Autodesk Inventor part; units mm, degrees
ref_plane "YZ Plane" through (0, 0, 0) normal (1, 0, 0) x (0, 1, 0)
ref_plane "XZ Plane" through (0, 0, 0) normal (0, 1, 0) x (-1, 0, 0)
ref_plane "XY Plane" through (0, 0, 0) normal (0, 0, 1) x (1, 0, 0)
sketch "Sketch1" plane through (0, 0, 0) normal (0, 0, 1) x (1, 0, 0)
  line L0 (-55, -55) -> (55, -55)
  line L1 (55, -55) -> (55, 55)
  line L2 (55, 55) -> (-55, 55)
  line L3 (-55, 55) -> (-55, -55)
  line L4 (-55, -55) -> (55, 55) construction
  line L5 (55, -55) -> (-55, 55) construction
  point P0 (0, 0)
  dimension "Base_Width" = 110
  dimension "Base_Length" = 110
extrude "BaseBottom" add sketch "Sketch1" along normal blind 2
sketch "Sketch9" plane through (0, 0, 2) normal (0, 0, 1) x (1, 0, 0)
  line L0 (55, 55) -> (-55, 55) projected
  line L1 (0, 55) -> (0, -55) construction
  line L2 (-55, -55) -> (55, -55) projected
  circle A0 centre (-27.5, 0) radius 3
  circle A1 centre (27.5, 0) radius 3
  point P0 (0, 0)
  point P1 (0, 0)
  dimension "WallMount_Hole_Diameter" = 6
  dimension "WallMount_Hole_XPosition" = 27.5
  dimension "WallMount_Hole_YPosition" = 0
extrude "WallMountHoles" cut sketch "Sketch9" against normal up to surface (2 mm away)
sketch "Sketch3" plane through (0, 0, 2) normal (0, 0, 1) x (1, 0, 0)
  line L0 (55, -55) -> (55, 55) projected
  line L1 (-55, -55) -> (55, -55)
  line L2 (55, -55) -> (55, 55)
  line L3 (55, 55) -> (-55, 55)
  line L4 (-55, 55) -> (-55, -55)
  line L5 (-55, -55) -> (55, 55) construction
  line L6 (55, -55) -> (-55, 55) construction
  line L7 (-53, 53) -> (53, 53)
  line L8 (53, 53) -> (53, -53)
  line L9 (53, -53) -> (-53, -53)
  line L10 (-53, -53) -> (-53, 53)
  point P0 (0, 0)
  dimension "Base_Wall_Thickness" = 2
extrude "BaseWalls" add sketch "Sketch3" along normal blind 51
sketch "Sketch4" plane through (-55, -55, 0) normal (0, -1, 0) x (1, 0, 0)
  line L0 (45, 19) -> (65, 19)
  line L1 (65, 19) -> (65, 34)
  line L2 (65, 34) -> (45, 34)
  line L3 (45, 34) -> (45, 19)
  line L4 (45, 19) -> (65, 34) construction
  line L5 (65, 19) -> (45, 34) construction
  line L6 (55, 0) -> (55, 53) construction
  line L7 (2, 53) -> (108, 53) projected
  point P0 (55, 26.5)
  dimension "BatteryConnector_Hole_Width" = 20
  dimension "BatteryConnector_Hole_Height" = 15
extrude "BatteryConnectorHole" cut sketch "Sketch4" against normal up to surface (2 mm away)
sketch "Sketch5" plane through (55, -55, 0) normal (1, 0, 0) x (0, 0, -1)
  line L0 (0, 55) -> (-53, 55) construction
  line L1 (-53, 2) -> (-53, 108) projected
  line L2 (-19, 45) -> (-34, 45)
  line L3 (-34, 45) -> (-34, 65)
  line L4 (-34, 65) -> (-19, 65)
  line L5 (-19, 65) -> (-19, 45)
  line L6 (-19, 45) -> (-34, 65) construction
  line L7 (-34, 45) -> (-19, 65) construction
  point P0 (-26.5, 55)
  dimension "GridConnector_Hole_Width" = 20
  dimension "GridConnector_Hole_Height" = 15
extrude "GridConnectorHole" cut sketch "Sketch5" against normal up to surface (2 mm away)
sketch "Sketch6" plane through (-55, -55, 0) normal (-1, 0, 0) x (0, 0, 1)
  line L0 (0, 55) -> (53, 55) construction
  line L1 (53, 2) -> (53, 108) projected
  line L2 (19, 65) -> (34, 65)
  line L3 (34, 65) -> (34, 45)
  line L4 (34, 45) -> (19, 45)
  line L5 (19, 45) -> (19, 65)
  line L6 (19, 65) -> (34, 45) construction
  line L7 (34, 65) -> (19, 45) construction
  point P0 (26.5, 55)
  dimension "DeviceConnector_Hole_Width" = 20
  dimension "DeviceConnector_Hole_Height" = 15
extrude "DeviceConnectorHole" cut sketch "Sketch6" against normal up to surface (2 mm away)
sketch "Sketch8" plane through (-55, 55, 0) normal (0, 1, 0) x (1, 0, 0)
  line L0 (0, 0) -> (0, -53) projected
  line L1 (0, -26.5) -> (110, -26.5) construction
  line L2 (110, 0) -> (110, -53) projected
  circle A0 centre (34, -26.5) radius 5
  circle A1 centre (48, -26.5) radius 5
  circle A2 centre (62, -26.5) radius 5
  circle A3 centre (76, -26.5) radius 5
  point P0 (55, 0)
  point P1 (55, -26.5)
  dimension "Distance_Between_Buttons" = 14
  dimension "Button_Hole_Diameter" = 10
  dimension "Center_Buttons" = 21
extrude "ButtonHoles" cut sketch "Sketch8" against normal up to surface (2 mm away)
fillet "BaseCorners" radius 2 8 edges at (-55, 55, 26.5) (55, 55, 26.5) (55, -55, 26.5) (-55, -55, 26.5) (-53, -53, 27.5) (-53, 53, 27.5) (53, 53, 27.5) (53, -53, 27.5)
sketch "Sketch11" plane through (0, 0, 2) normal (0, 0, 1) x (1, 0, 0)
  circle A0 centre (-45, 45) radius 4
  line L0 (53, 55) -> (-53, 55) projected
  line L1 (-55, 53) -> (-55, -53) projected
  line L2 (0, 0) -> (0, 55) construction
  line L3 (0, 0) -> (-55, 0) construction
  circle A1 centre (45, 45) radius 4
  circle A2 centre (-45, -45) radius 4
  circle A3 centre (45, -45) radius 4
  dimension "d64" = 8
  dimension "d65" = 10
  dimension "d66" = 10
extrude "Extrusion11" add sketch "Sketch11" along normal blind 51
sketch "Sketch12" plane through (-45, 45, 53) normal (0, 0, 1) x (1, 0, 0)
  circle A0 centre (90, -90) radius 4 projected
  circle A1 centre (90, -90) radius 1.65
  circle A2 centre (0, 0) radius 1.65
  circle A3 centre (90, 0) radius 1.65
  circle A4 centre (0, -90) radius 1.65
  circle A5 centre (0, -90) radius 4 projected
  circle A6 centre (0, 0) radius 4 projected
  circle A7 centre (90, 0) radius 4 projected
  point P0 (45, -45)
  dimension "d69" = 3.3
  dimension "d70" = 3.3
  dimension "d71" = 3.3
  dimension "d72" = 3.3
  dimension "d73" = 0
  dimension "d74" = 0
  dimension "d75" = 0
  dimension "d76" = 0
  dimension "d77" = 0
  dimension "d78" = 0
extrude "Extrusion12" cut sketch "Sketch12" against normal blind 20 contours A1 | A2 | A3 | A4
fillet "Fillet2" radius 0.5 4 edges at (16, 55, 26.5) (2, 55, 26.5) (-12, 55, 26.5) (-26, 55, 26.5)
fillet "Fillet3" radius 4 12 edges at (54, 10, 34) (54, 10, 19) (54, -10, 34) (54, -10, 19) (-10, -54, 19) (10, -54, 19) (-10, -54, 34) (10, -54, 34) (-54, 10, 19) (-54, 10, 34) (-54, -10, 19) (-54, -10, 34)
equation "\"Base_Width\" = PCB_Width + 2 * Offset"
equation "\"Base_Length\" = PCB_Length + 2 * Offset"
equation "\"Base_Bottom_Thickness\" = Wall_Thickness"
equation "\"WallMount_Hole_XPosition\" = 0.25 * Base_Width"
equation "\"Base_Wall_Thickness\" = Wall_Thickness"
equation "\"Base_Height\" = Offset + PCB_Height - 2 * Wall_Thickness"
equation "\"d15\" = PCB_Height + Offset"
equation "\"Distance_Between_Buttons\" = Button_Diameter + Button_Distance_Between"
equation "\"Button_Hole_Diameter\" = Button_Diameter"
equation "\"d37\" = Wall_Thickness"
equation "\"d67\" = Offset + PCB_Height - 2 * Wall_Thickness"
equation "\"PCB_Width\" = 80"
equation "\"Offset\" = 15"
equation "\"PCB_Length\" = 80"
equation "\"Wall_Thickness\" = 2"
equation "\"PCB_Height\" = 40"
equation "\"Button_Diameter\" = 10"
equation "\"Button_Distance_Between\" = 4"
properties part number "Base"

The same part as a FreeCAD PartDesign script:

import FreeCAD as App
import Part
import Sketcher
from FreeCAD import Vector
Q = App.Units.Quantity


def edges_at(feature, points):
    """Names of the edges that pass closest to the given points."""
    edges = feature.Shape.Edges
    near = lambda p: min(range(len(edges)), key=lambda i: edges[i].distToShape(Part.Vertex(*p))[0])
    return sorted({f"Edge{near(p) + 1}" for p in points})

doc = App.newDocument("Part")
body = doc.addObject("PartDesign::Body", "Body")

sketch1 = doc.addObject("Sketcher::SketchObject", "Sketch")
body.addObject(sketch1)
sketch1.AttachmentSupport = (doc.XY_Plane, [""])
sketch1.MapMode = "FlatFace"
sketch1.addGeometry(Part.LineSegment(Vector(-55, 55, 0), Vector(-55, -55, 0)), False)
sketch1.addGeometry(Part.LineSegment(Vector(-55, -55, 0), Vector(55, -55, 0)), False)
sketch1.addGeometry(Part.LineSegment(Vector(55, -55, 0), Vector(55, 55, 0)), False)
sketch1.addGeometry(Part.LineSegment(Vector(55, 55, 0), Vector(-55, 55, 0)), False)
sketch1.addConstraint(Sketcher.Constraint("Coincident", 0, 2, 1, 1))
sketch1.addConstraint(Sketcher.Constraint("Coincident", 1, 2, 2, 1))
sketch1.addConstraint(Sketcher.Constraint("Coincident", 2, 2, 3, 1))
sketch1.addConstraint(Sketcher.Constraint("Coincident", 3, 2, 0, 1))
sketch1.addConstraint(Sketcher.Constraint("Vertical", 0))
sketch1.addConstraint(Sketcher.Constraint("Horizontal", 1))
sketch1.addConstraint(Sketcher.Constraint("Vertical", 2))
sketch1.addConstraint(Sketcher.Constraint("Horizontal", 3))
sketch1.addConstraint(Sketcher.Constraint("Symmetric", 0, 2, 2, 2, -1, 1))
sketch1.addConstraint(Sketcher.Constraint("Equal", 3, 0))
sketch1.addConstraint(Sketcher.Constraint("DistanceX", 1, 1, 1, 2, Q("110 mm")))
pad1 = doc.addObject("PartDesign::Pad", "Pad")
body.addObject(pad1)
pad1.Profile = sketch1
pad1.Length = 2

sketch2 = doc.addObject("Sketcher::SketchObject", "Sketch001")
body.addObject(sketch2)
sketch2.AttachmentSupport = (doc.XY_Plane, [""])
sketch2.MapMode = "FlatFace"
sketch2.AttachmentOffset = App.Placement(Vector(0, 0, 2), App.Rotation())
sketch2.addGeometry(Part.Circle(Vector(-27.5, 0, 0), Vector(0, 0, 1), 3), False)
sketch2.addGeometry(Part.Circle(Vector(27.5, 0, 0), Vector(0, 0, 1), 3), False)
sketch2.addConstraint(Sketcher.Constraint("Equal", 0, 1))
sketch2.addConstraint(Sketcher.Constraint("Symmetric", 0, 3, 1, 3, -1, 1))
sketch2.addConstraint(Sketcher.Constraint("PointOnObject", 0, 3, -1))
sketch2.addConstraint(Sketcher.Constraint("Diameter", 0, Q("6 mm")))
sketch2.addConstraint(Sketcher.Constraint("DistanceX", 0, 3, -1, 1, Q("27.5 mm")))
pocket1 = doc.addObject("PartDesign::Pocket", "Pocket")
body.addObject(pocket1)
pocket1.Profile = sketch2
pocket1.Length = 2

sketch3 = doc.addObject("Sketcher::SketchObject", "Sketch002")
body.addObject(sketch3)
sketch3.AttachmentSupport = (doc.XY_Plane, [""])
sketch3.MapMode = "FlatFace"
sketch3.AttachmentOffset = App.Placement(Vector(0, 0, 2), App.Rotation())
sketch3.addGeometry(Part.LineSegment(Vector(-55, -55, 0), Vector(55, -55, 0)), False)
sketch3.addGeometry(Part.LineSegment(Vector(55, -55, 0), Vector(55, 55, 0)), False)
sketch3.addGeometry(Part.LineSegment(Vector(55, 55, 0), Vector(-55, 55, 0)), False)
sketch3.addGeometry(Part.LineSegment(Vector(-55, 55, 0), Vector(-55, -55, 0)), False)
sketch3.addGeometry(Part.LineSegment(Vector(-53, -53, 0), Vector(-53, 53, 0)), False)
sketch3.addGeometry(Part.LineSegment(Vector(-53, 53, 0), Vector(53, 53, 0)), False)
sketch3.addGeometry(Part.LineSegment(Vector(53, 53, 0), Vector(53, -53, 0)), False)
sketch3.addGeometry(Part.LineSegment(Vector(53, -53, 0), Vector(-53, -53, 0)), False)
sketch3.addConstraint(Sketcher.Constraint("Coincident", 0, 2, 1, 1))
sketch3.addConstraint(Sketcher.Constraint("Coincident", 1, 2, 2, 1))
sketch3.addConstraint(Sketcher.Constraint("Coincident", 2, 2, 3, 1))
sketch3.addConstraint(Sketcher.Constraint("Coincident", 3, 2, 0, 1))
sketch3.addConstraint(Sketcher.Constraint("Coincident", 4, 2, 5, 1))
sketch3.addConstraint(Sketcher.Constraint("Coincident", 5, 2, 6, 1))
sketch3.addConstraint(Sketcher.Constraint("Coincident", 6, 2, 7, 1))
sketch3.addConstraint(Sketcher.Constraint("Coincident", 7, 2, 4, 1))
sketch3.addConstraint(Sketcher.Constraint("Horizontal", 0))
sketch3.addConstraint(Sketcher.Constraint("Vertical", 1))
sketch3.addConstraint(Sketcher.Constraint("Horizontal", 2))
sketch3.addConstraint(Sketcher.Constraint("Vertical", 3))
sketch3.addConstraint(Sketcher.Constraint("Vertical", 4))
sketch3.addConstraint(Sketcher.Constraint("Horizontal", 5))
sketch3.addConstraint(Sketcher.Constraint("Vertical", 6))
sketch3.addConstraint(Sketcher.Constraint("Horizontal", 7))
sketch3.addConstraint(Sketcher.Constraint("Symmetric", 0, 2, 2, 2, -1, 1))
sketch3.addConstraint(Sketcher.Constraint("Symmetric", 4, 2, 6, 2, -1, 1))
sketch3.addConstraint(Sketcher.Constraint("Equal", 2, 1))
sketch3.addConstraint(Sketcher.Constraint("Equal", 7, 4))
sketch3.addConstraint(Sketcher.Constraint("DistanceX", 2, 2, 4, 2, Q("2 mm")))
sketch3.addConstraint(Sketcher.Constraint("DistanceX", 0, 1, 0, 2, Q("110 mm")))
pad2 = doc.addObject("PartDesign::Pad", "Pad001")
body.addObject(pad2)
pad2.Profile = sketch3
pad2.Length = 51

sketch4 = doc.addObject("Sketcher::SketchObject", "Sketch003")
body.addObject(sketch4)
sketch4.AttachmentSupport = (doc.XZ_Plane, [""])
sketch4.MapMode = "FlatFace"
sketch4.AttachmentOffset = App.Placement(Vector(0, 0, 55), App.Rotation())
sketch4.addGeometry(Part.LineSegment(Vector(-10, 34, 0), Vector(-10, 19, 0)), False)
sketch4.addGeometry(Part.LineSegment(Vector(-10, 19, 0), Vector(10, 19, 0)), False)
sketch4.addGeometry(Part.LineSegment(Vector(10, 19, 0), Vector(10, 34, 0)), False)
sketch4.addGeometry(Part.LineSegment(Vector(10, 34, 0), Vector(-10, 34, 0)), False)
sketch4.addConstraint(Sketcher.Constraint("Coincident", 0, 2, 1, 1))
sketch4.addConstraint(Sketcher.Constraint("Coincident", 1, 2, 2, 1))
sketch4.addConstraint(Sketcher.Constraint("Coincident", 2, 2, 3, 1))
sketch4.addConstraint(Sketcher.Constraint("Coincident", 3, 2, 0, 1))
sketch4.addConstraint(Sketcher.Constraint("Vertical", 0))
sketch4.addConstraint(Sketcher.Constraint("Horizontal", 1))
sketch4.addConstraint(Sketcher.Constraint("Vertical", 2))
sketch4.addConstraint(Sketcher.Constraint("Horizontal", 3))
sketch4.addConstraint(Sketcher.Constraint("DistanceX", 1, 1, 1, 2, Q("20 mm")))
sketch4.addConstraint(Sketcher.Constraint("DistanceY", 0, 2, 0, 1, Q("15 mm")))
sketch4.addConstraint(Sketcher.Constraint("DistanceX", 0, 2, -1, 1, Q("10 mm")))
sketch4.addConstraint(Sketcher.Constraint("DistanceY", -1, 1, 0, 2, Q("19 mm")))
pocket2 = doc.addObject("PartDesign::Pocket", "Pocket001")
body.addObject(pocket2)
pocket2.Profile = sketch4
pocket2.Length = 2

sketch5 = doc.addObject("Sketcher::SketchObject", "Sketch004")
body.addObject(sketch5)
sketch5.AttachmentSupport = (doc.YZ_Plane, [""])
sketch5.MapMode = "FlatFace"
sketch5.AttachmentOffset = App.Placement(Vector(0, 0, 55), App.Rotation())
sketch5.addGeometry(Part.LineSegment(Vector(-10, 34, 0), Vector(-10, 19, 0)), False)
sketch5.addGeometry(Part.LineSegment(Vector(-10, 19, 0), Vector(10, 19, 0)), False)
sketch5.addGeometry(Part.LineSegment(Vector(10, 19, 0), Vector(10, 34, 0)), False)
sketch5.addGeometry(Part.LineSegment(Vector(10, 34, 0), Vector(-10, 34, 0)), False)
sketch5.addConstraint(Sketcher.Constraint("Coincident", 0, 2, 1, 1))
sketch5.addConstraint(Sketcher.Constraint("Coincident", 1, 2, 2, 1))
sketch5.addConstraint(Sketcher.Constraint("Coincident", 2, 2, 3, 1))
sketch5.addConstraint(Sketcher.Constraint("Coincident", 3, 2, 0, 1))
sketch5.addConstraint(Sketcher.Constraint("Vertical", 0))
sketch5.addConstraint(Sketcher.Constraint("Horizontal", 1))
sketch5.addConstraint(Sketcher.Constraint("Vertical", 2))
sketch5.addConstraint(Sketcher.Constraint("Horizontal", 3))
sketch5.addConstraint(Sketcher.Constraint("DistanceX", 1, 1, 1, 2, Q("20 mm")))
sketch5.addConstraint(Sketcher.Constraint("DistanceY", 0, 2, 0, 1, Q("15 mm")))
sketch5.addConstraint(Sketcher.Constraint("DistanceX", 0, 2, -1, 1, Q("10 mm")))
sketch5.addConstraint(Sketcher.Constraint("DistanceY", -1, 1, 0, 2, Q("19 mm")))
pocket3 = doc.addObject("PartDesign::Pocket", "Pocket002")
body.addObject(pocket3)
pocket3.Profile = sketch5
pocket3.Length = 2

sketch6 = doc.addObject("Sketcher::SketchObject", "Sketch005")
body.addObject(sketch6)
sketch6.AttachmentSupport = (doc.YZ_Plane, [""])
sketch6.MapMode = "FlatFace"
sketch6.AttachmentOffset = App.Placement(Vector(0, 0, -55), App.Rotation())
sketch6.addGeometry(Part.LineSegment(Vector(10, 34, 0), Vector(10, 19, 0)), False)
sketch6.addGeometry(Part.LineSegment(Vector(10, 19, 0), Vector(-10, 19, 0)), False)
sketch6.addGeometry(Part.LineSegment(Vector(-10, 19, 0), Vector(-10, 34, 0)), False)
sketch6.addGeometry(Part.LineSegment(Vector(-10, 34, 0), Vector(10, 34, 0)), False)
sketch6.addConstraint(Sketcher.Constraint("Coincident", 0, 2, 1, 1))
sketch6.addConstraint(Sketcher.Constraint("Coincident", 1, 2, 2, 1))
sketch6.addConstraint(Sketcher.Constraint("Coincident", 2, 2, 3, 1))
sketch6.addConstraint(Sketcher.Constraint("Coincident", 3, 2, 0, 1))
sketch6.addConstraint(Sketcher.Constraint("Vertical", 0))
sketch6.addConstraint(Sketcher.Constraint("Horizontal", 1))
sketch6.addConstraint(Sketcher.Constraint("Vertical", 2))
sketch6.addConstraint(Sketcher.Constraint("Horizontal", 3))
sketch6.addConstraint(Sketcher.Constraint("DistanceX", 1, 2, 1, 1, Q("20 mm")))
sketch6.addConstraint(Sketcher.Constraint("DistanceY", 0, 2, 0, 1, Q("15 mm")))
sketch6.addConstraint(Sketcher.Constraint("DistanceX", -1, 1, 0, 2, Q("10 mm")))
sketch6.addConstraint(Sketcher.Constraint("DistanceY", -1, 1, 0, 2, Q("19 mm")))
pocket4 = doc.addObject("PartDesign::Pocket", "Pocket003")
body.addObject(pocket4)
pocket4.Profile = sketch6
pocket4.Length = 2
pocket4.Reversed = True

sketch7 = doc.addObject("Sketcher::SketchObject", "Sketch006")
body.addObject(sketch7)
sketch7.AttachmentSupport = (doc.XZ_Plane, [""])
sketch7.MapMode = "FlatFace"
sketch7.AttachmentOffset = App.Placement(Vector(0, 0, -55), App.Rotation())
sketch7.addGeometry(Part.Circle(Vector(-21, 26.5, 0), Vector(0, 0, 1), 5), False)
sketch7.addGeometry(Part.Circle(Vector(-7, 26.5, 0), Vector(0, 0, 1), 5), False)
sketch7.addGeometry(Part.Circle(Vector(7, 26.5, 0), Vector(0, 0, 1), 5), False)
sketch7.addGeometry(Part.Circle(Vector(21, 26.5, 0), Vector(0, 0, 1), 5), False)
sketch7.addConstraint(Sketcher.Constraint("Equal", 0, 1))
sketch7.addConstraint(Sketcher.Constraint("Equal", 1, 2))
sketch7.addConstraint(Sketcher.Constraint("Equal", 2, 3))
sketch7.addConstraint(Sketcher.Constraint("Symmetric", 1, 3, 2, 3, -2))
sketch7.addConstraint(Sketcher.Constraint("Symmetric", 0, 3, 3, 3, -2))
sketch7.addConstraint(Sketcher.Constraint("Horizontal", 0, 3, 1, 3))
sketch7.addConstraint(Sketcher.Constraint("Diameter", 0, Q("10 mm")))
sketch7.addConstraint(Sketcher.Constraint("DistanceX", 0, 3, -1, 1, Q("21 mm")))
sketch7.addConstraint(Sketcher.Constraint("DistanceX", 0, 3, 1, 3, Q("14 mm")))
sketch7.addConstraint(Sketcher.Constraint("DistanceY", -1, 1, 0, 3, Q("26.5 mm")))
pocket5 = doc.addObject("PartDesign::Pocket", "Pocket004")
body.addObject(pocket5)
pocket5.Profile = sketch7
pocket5.Length = 2
pocket5.Reversed = True
doc.recompute()

fillet = doc.addObject("PartDesign::Fillet", "Fillet")
body.addObject(fillet)
fillet.Base = (pocket5, edges_at(pocket5, [
    (-55, 55, 26.5),
    (55, 55, 26.5),
    (55, -55, 26.5),
    (-55, -55, 26.5),
    (-53, -53, 27.5),
    (-53, 53, 27.5),
    (53, 53, 27.5),
    (53, -53, 27.5),
]))
fillet.Radius = 2

sketch8 = doc.addObject("Sketcher::SketchObject", "Sketch007")
body.addObject(sketch8)
sketch8.AttachmentSupport = (doc.XY_Plane, [""])
sketch8.MapMode = "FlatFace"
sketch8.AttachmentOffset = App.Placement(Vector(0, 0, 2), App.Rotation())
sketch8.addGeometry(Part.Circle(Vector(-45, 45, 0), Vector(0, 0, 1), 4), False)
sketch8.addGeometry(Part.Circle(Vector(45, 45, 0), Vector(0, 0, 1), 4), False)
sketch8.addGeometry(Part.Circle(Vector(-45, -45, 0), Vector(0, 0, 1), 4), False)
sketch8.addGeometry(Part.Circle(Vector(45, -45, 0), Vector(0, 0, 1), 4), False)
sketch8.addConstraint(Sketcher.Constraint("Equal", 0, 1))
sketch8.addConstraint(Sketcher.Constraint("Equal", 1, 2))
sketch8.addConstraint(Sketcher.Constraint("Equal", 2, 3))
sketch8.addConstraint(Sketcher.Constraint("Symmetric", 1, 3, 2, 3, -1, 1))
sketch8.addConstraint(Sketcher.Constraint("Symmetric", 0, 3, 3, 3, -1, 1))
sketch8.addConstraint(Sketcher.Constraint("Symmetric", 0, 3, 1, 3, -2))
sketch8.addConstraint(Sketcher.Constraint("Diameter", 0, Q("8 mm")))
sketch8.addConstraint(Sketcher.Constraint("DistanceX", 0, 3, -1, 1, Q("45 mm")))
sketch8.addConstraint(Sketcher.Constraint("DistanceY", -1, 1, 0, 3, Q("45 mm")))
pad3 = doc.addObject("PartDesign::Pad", "Pad002")
body.addObject(pad3)
pad3.Profile = sketch8
pad3.Length = 51

sketch9 = doc.addObject("Sketcher::SketchObject", "Sketch008")
body.addObject(sketch9)
sketch9.AttachmentSupport = (doc.XY_Plane, [""])
sketch9.MapMode = "FlatFace"
sketch9.AttachmentOffset = App.Placement(Vector(0, 0, 53), App.Rotation())
sketch9.addGeometry(Part.Circle(Vector(45, -45, 0), Vector(0, 0, 1), 1.65), False)
sketch9.addGeometry(Part.Circle(Vector(-45, 45, 0), Vector(0, 0, 1), 1.65), False)
sketch9.addGeometry(Part.Circle(Vector(45, 45, 0), Vector(0, 0, 1), 1.65), False)
sketch9.addGeometry(Part.Circle(Vector(-45, -45, 0), Vector(0, 0, 1), 1.65), False)
sketch9.addConstraint(Sketcher.Constraint("Equal", 0, 1))
sketch9.addConstraint(Sketcher.Constraint("Equal", 1, 2))
sketch9.addConstraint(Sketcher.Constraint("Equal", 2, 3))
sketch9.addConstraint(Sketcher.Constraint("Symmetric", 0, 3, 1, 3, -1, 1))
sketch9.addConstraint(Sketcher.Constraint("Symmetric", 2, 3, 3, 3, -1, 1))
sketch9.addConstraint(Sketcher.Constraint("Symmetric", 1, 3, 2, 3, -2))
sketch9.addConstraint(Sketcher.Constraint("Diameter", 0, Q("3.3 mm")))
sketch9.addConstraint(Sketcher.Constraint("DistanceX", -1, 1, 0, 3, Q("45 mm")))
sketch9.addConstraint(Sketcher.Constraint("DistanceY", 0, 3, -1, 1, Q("45 mm")))
pocket6 = doc.addObject("PartDesign::Pocket", "Pocket005")
body.addObject(pocket6)
pocket6.Profile = sketch9
pocket6.Length = 20
doc.recompute()

fillet2 = doc.addObject("PartDesign::Fillet", "Fillet001")
body.addObject(fillet2)
fillet2.Base = (pocket6, edges_at(pocket6, [
    (16, 55, 26.5),
    (2, 55, 26.5),
    (-12, 55, 26.5),
    (-26, 55, 26.5),
]))
fillet2.Radius = 0.5
doc.recompute()

fillet3 = doc.addObject("PartDesign::Fillet", "Fillet002")
body.addObject(fillet3)
fillet3.Base = (fillet2, edges_at(fillet2, [
    (54, 10, 34),
    (54, 10, 19),
    (54, -10, 34),
    (54, -10, 19),
    (-10, -54, 19),
    (10, -54, 19),
    (-10, -54, 34),
    (10, -54, 34),
    (-54, 10, 19),
    (-54, 10, 34),
    (-54, -10, 19),
    (-54, -10, 34),
]))
fillet3.Radius = 4

doc.recompute()
